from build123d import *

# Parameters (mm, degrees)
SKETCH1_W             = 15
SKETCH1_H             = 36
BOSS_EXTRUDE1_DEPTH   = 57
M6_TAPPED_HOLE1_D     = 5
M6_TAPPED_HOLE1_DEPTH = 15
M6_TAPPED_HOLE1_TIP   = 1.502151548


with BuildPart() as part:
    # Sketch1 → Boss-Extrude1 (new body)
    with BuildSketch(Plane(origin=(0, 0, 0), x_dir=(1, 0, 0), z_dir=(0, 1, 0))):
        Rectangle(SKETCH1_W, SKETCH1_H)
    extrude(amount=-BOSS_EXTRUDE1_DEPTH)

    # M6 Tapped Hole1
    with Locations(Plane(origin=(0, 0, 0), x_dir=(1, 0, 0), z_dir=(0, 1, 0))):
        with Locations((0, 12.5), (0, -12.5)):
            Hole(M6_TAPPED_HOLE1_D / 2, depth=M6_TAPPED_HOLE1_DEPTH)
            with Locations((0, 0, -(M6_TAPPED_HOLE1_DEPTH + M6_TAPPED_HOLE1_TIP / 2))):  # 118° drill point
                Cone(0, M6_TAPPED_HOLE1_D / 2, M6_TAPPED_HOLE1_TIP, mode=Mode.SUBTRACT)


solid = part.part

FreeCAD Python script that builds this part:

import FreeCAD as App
import Part
import Sketcher

V = App.Vector

doc = App.newDocument("Part")
body = doc.addObject("PartDesign::Body", "Body")

# Sketch on XZ plane
sketch1 = doc.addObject("Sketcher::SketchObject", "Sketch")
body.addObject(sketch1)
sketch1.AttachmentSupport = (doc.XZ_Plane, [""])
sketch1.MapMode = "FlatFace"
sketch1.addGeometry(Part.LineSegment(V(-8, -18, 0), V(-8, 18, 0)), False)
sketch1.addGeometry(Part.LineSegment(V(-8, 18, 0), V(8, 18, 0)), False)
sketch1.addGeometry(Part.LineSegment(V(8, 18, 0), V(8, -18, 0)), False)
sketch1.addGeometry(Part.LineSegment(V(8, -18, 0), V(-8, -18, 0)), False)
sketch1.addConstraint(Sketcher.Constraint("Coincident", 0, 2, 1, 1))
sketch1.addConstraint(Sketcher.Constraint("Coincident", 1, 2, 2, 1))
sketch1.addConstraint(Sketcher.Constraint("Coincident", 2, 2, 3, 1))
sketch1.addConstraint(Sketcher.Constraint("Coincident", 3, 2, 0, 1))
sketch1.addConstraint(Sketcher.Constraint("Vertical", 0))
sketch1.addConstraint(Sketcher.Constraint("Horizontal", 1))
sketch1.addConstraint(Sketcher.Constraint("Vertical", 2))
sketch1.addConstraint(Sketcher.Constraint("Horizontal", 3))
sketch1.addConstraint(Sketcher.Constraint("Symmetric", 0, 2, 2, 2, -1, 1))
sketch1.addConstraint(Sketcher.Constraint("DistanceX", 1, 1, 1, 2, 15.0))
sketch1.addConstraint(Sketcher.Constraint("DistanceY", 0, 1, 0, 2, 36.0))
pad1 = doc.addObject("PartDesign::Pad", "Pad")
body.addObject(pad1)
pad1.Profile = sketch1
pad1.Length = 57

# Sketch on XZ plane
sketch2 = doc.addObject("Sketcher::SketchObject", "Sketch001")
body.addObject(sketch2)
sketch2.AttachmentSupport = (doc.XZ_Plane, [""])
sketch2.MapMode = "FlatFace"
sketch2.addGeometry(Part.Circle(V(0, -12.5, 0), V(0, 0, 1), 2.5), False)
sketch2.addGeometry(Part.Circle(V(0, 12.5, 0), V(0, 0, 1), 2.5), False)
sketch2.addConstraint(Sketcher.Constraint("Equal", 0, 1))
sketch2.addConstraint(Sketcher.Constraint("Symmetric", 0, 3, 1, 3, -1, 1))
sketch2.addConstraint(Sketcher.Constraint("PointOnObject", 0, 3, -2))
sketch2.addConstraint(Sketcher.Constraint("Diameter", 0, 5.0))
sketch2.addConstraint(Sketcher.Constraint("DistanceY", 0, 3, 1, 3, 25.0))
doc.recompute()
hole = doc.addObject("PartDesign::Hole", "Hole")
body.addObject(hole)
hole.Profile = sketch2
hole.ThreadType = "None"
hole.Diameter = 5
hole.DepthType = "Dimension"
hole.Depth = 15
hole.DrillPoint = "Angled"
hole.DrillPointAngle = 118
hole.Reversed = True

doc.recompute()
